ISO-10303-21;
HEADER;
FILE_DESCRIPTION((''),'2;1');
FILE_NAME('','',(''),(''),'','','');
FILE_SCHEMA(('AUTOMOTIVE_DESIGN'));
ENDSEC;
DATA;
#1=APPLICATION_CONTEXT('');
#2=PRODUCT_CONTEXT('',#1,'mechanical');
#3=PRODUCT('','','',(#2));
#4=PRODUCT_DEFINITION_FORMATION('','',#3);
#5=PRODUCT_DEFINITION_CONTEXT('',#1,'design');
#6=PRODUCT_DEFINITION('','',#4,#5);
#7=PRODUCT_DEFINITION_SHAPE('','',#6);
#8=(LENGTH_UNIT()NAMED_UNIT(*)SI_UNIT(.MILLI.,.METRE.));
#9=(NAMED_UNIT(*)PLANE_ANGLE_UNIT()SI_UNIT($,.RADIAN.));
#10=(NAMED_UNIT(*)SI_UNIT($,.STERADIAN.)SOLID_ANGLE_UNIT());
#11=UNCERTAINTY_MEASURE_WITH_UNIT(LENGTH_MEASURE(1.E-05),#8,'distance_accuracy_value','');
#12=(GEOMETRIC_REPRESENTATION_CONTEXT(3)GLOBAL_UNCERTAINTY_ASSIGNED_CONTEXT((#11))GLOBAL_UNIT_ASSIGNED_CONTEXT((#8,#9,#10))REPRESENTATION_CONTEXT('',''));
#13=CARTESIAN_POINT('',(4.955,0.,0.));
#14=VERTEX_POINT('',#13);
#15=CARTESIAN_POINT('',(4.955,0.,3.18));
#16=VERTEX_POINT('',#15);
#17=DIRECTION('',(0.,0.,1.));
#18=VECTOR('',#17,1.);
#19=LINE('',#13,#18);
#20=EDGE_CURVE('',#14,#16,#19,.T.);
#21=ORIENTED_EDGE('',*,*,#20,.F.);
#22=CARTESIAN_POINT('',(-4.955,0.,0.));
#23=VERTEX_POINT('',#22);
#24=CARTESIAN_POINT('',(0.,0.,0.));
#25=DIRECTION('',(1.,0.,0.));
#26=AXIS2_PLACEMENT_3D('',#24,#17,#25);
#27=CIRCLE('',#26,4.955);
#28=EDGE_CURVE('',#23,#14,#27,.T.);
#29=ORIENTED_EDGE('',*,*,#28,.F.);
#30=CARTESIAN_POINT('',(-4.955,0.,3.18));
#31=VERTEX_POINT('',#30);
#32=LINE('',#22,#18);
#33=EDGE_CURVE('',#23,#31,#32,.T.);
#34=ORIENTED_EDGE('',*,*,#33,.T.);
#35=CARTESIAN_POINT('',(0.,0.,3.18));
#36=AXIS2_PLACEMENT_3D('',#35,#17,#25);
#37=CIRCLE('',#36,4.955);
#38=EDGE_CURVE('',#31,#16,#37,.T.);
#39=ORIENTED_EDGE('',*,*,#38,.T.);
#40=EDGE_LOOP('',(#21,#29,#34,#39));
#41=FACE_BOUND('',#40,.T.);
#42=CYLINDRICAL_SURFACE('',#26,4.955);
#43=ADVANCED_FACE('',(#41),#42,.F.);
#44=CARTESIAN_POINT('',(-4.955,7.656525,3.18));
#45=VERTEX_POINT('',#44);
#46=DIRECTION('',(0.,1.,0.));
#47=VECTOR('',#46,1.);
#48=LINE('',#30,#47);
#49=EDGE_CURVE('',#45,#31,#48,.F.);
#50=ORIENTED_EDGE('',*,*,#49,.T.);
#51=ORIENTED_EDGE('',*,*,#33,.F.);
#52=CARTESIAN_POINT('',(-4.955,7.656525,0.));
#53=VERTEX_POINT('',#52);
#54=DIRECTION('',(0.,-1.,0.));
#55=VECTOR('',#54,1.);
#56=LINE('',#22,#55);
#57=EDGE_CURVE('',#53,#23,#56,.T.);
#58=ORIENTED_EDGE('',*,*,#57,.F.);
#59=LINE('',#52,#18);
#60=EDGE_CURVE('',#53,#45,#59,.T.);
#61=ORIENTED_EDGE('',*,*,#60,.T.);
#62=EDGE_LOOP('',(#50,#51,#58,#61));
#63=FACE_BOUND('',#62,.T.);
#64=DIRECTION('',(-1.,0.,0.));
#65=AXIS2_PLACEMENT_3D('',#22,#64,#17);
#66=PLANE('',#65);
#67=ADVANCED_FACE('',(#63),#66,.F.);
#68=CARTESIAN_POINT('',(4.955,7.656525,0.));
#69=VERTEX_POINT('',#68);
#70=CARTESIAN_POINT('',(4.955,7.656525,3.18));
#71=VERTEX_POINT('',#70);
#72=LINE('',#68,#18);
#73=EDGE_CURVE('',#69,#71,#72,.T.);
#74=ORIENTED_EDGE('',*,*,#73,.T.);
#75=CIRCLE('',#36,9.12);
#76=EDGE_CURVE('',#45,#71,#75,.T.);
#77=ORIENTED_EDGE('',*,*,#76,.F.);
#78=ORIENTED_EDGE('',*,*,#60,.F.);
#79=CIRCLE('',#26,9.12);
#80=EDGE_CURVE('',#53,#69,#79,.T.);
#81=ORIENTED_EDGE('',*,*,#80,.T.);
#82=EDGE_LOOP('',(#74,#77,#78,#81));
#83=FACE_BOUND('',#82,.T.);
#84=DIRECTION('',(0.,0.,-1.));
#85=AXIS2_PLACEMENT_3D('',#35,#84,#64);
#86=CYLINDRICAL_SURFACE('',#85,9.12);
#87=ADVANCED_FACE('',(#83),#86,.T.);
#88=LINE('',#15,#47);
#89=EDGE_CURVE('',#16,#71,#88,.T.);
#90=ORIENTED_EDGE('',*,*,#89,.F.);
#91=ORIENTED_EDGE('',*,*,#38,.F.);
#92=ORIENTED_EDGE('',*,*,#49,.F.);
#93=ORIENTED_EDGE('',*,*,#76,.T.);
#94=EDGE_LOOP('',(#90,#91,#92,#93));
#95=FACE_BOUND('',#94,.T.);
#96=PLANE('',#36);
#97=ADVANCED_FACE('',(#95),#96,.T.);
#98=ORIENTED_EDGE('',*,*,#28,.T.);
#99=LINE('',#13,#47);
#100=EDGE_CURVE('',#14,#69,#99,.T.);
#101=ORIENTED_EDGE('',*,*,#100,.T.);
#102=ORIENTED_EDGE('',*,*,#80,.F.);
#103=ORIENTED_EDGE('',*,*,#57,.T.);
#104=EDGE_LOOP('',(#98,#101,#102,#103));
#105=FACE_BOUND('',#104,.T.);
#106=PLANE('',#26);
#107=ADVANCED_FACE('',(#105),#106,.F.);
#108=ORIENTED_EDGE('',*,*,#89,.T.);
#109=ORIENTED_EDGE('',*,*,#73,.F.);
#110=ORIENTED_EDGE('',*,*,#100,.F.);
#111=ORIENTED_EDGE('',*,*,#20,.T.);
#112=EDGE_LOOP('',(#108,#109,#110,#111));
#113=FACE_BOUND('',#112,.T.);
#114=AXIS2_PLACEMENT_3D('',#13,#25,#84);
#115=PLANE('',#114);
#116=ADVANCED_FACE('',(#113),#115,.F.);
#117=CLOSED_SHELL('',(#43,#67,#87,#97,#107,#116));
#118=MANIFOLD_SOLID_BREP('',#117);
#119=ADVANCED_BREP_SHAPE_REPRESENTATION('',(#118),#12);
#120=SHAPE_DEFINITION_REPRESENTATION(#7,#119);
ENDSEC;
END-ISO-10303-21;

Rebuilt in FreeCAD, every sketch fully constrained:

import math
import FreeCAD as App
import Part
import Sketcher
from FreeCAD import Vector

doc = App.newDocument("Part")
body = doc.addObject("PartDesign::Body", "Body")

sketch1 = body.newObject("Sketcher::SketchObject", "Sketch")
sketch1.AttachmentSupport = (doc.getObject("XY_Plane"), [""])
sketch1.MapMode = "FlatFace"
sketch1.addGeometry(Part.Circle(Vector(0, 0, 0), Vector(0, 0, 1), 9), False)
sketch1.addConstraint([
    Sketcher.Constraint("Coincident", 0, 3, -1, 1),
    Sketcher.Constraint("Diameter", 0, 18.24),
])
pad1 = body.newObject("PartDesign::Pad", "Pad")
pad1.Profile = sketch1
pad1.Length = 3.18

sketch2 = body.newObject("Sketcher::SketchObject", "Sketch001")
sketch2.AttachmentSupport = (doc.getObject("XY_Plane"), [""])
sketch2.MapMode = "FlatFace"
sketch2.AttachmentOffset = App.Placement(Vector(0, 0, 3.18), App.Rotation())
sketch2.addGeometry([
    Part.LineSegment(Vector(-5, 7.7, 0), Vector(-5, 0, 0)),
    Part.ArcOfCircle(Part.Circle(Vector(0, 0, 0), Vector(0, 0, 1), 5), math.radians(180), math.radians(360)),
    Part.LineSegment(Vector(5, 0, 0), Vector(5, 7.7, 0)),
    Part.ArcOfCircle(Part.Circle(Vector(0, 0, 0), Vector(0, 0, 1), 9.1), math.radians(57), math.radians(123)),
], False)
sketch2.addConstraint([
    Sketcher.Constraint("Tangent", 0, 2, 1, 1),
    Sketcher.Constraint("Tangent", 1, 2, 2, 1),
    Sketcher.Constraint("Coincident", 2, 2, 3, 1),
    Sketcher.Constraint("Coincident", 3, 2, 0, 1),
    Sketcher.Constraint("Vertical", 0),
    Sketcher.Constraint("Vertical", 2),
    Sketcher.Constraint("Coincident", 1, 3, -1, 1),
    Sketcher.Constraint("Coincident", 3, 3, -1, 1),
    Sketcher.Constraint("Radius", 3, 9.12),
    Sketcher.Constraint("Radius", 1, 4.955),
])
pocket1 = body.newObject("PartDesign::Pocket", "Pocket")
pocket1.Profile = sketch2
pocket1.Type = "ThroughAll"
pocket1.Midplane = True

doc.recompute()
